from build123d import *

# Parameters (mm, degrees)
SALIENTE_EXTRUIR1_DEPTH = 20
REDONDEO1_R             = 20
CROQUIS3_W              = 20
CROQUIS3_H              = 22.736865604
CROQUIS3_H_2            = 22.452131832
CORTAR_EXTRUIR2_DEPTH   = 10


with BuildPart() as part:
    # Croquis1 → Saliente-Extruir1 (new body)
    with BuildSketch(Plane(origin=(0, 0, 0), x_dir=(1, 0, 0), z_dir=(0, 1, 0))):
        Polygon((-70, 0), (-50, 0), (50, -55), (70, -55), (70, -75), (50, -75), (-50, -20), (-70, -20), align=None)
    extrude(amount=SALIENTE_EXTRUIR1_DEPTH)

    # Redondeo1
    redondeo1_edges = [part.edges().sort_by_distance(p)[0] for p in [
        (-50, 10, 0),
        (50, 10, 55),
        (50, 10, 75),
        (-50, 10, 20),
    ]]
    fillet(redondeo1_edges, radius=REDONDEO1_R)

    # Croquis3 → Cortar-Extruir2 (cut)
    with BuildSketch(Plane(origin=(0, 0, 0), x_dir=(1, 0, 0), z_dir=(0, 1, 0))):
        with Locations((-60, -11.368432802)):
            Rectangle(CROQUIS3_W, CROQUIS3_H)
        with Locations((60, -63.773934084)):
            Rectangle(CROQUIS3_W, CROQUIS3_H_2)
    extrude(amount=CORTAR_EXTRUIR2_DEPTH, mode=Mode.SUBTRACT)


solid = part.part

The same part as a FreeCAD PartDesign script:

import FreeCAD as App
import Part
import Sketcher
Q = App.Units.Quantity


def edges_at(feature, points):
    """Names of the edges that pass closest to the given points."""
    edges = feature.Shape.Edges
    near = lambda p: min(range(len(edges)), key=lambda i: edges[i].distToShape(Part.Vertex(*p))[0])
    return sorted({f"Edge{near(p) + 1}" for p in points})

doc = App.newDocument("Part")
body = doc.addObject("PartDesign::Body", "Body")

# Sketch on XZ plane
sketch1 = body.newObject("Sketcher::SketchObject", "Sketch")
sketch1.AttachmentSupport = (doc.getObject("XZ_Plane"), [""])
sketch1.MapMode = "FlatFace"
sketch1.addGeometry(Part.LineSegment(App.Vector(-50, 0, 0), App.Vector(-70, 0, 0)), False)
sketch1.addGeometry(Part.LineSegment(App.Vector(-70, 0, 0), App.Vector(-70, 20, 0)), False)
sketch1.addGeometry(Part.LineSegment(App.Vector(-70, 20, 0), App.Vector(-50, 20, 0)), False)
sketch1.addGeometry(Part.LineSegment(App.Vector(-50, 20, 0), App.Vector(50, 75, 0)), False)
sketch1.addGeometry(Part.LineSegment(App.Vector(50, 75, 0), App.Vector(70, 75, 0)), False)
sketch1.addGeometry(Part.LineSegment(App.Vector(70, 75, 0), App.Vector(70, 55, 0)), False)
sketch1.addGeometry(Part.LineSegment(App.Vector(70, 55, 0), App.Vector(50, 55, 0)), False)
sketch1.addGeometry(Part.LineSegment(App.Vector(50, 55, 0), App.Vector(-50, 0, 0)), False)
sketch1.addConstraint(Sketcher.Constraint("Coincident", 0, 2, 1, 1))
sketch1.addConstraint(Sketcher.Constraint("Coincident", 1, 2, 2, 1))
sketch1.addConstraint(Sketcher.Constraint("Coincident", 2, 2, 3, 1))
sketch1.addConstraint(Sketcher.Constraint("Coincident", 3, 2, 4, 1))
sketch1.addConstraint(Sketcher.Constraint("Coincident", 4, 2, 5, 1))
sketch1.addConstraint(Sketcher.Constraint("Coincident", 5, 2, 6, 1))
sketch1.addConstraint(Sketcher.Constraint("Coincident", 6, 2, 7, 1))
sketch1.addConstraint(Sketcher.Constraint("Coincident", 7, 2, 0, 1))
sketch1.addConstraint(Sketcher.Constraint("Horizontal", 0))
sketch1.addConstraint(Sketcher.Constraint("Vertical", 1))
sketch1.addConstraint(Sketcher.Constraint("Horizontal", 2))
sketch1.addConstraint(Sketcher.Constraint("Horizontal", 4))
sketch1.addConstraint(Sketcher.Constraint("Vertical", 5))
sketch1.addConstraint(Sketcher.Constraint("Horizontal", 6))
sketch1.addConstraint(Sketcher.Constraint("PointOnObject", 0, 2, -1))
sketch1.addConstraint(Sketcher.Constraint("Parallel", 3, 7))
sketch1.addConstraint(Sketcher.Constraint("Vertical", 3, 2, 6, 2))
sketch1.addConstraint(Sketcher.Constraint("Vertical", 2, 2, 7, 2))
sketch1.addConstraint(Sketcher.Constraint("Equal", 2, 4))
sketch1.addConstraint(Sketcher.Constraint("Equal", 6, 1))
sketch1.addConstraint(Sketcher.Constraint("DistanceX", 0, 2, 0, 1, Q("20 mm")))
sketch1.addConstraint(Sketcher.Constraint("DistanceX", 0, 2, -1, 1, Q("70 mm")))
sketch1.addConstraint(Sketcher.Constraint("DistanceX", -1, 1, 3, 2, Q("50 mm")))
sketch1.addConstraint(Sketcher.Constraint("DistanceY", -1, 1, 3, 2, Q("75 mm")))
pad1 = body.newObject("PartDesign::Pad", "Pad")
pad1.Profile = sketch1
pad1.Length = 20
pad1.Reversed = True
doc.recompute()

fillet = body.newObject("PartDesign::Fillet", "Fillet")
fillet.Base = (pad1, edges_at(pad1, [
    (-50, 10, 0),
    (50, 10, 55),
    (50, 10, 75),
    (-50, 10, 20),
]))
fillet.Radius = 20

# Sketch on XZ plane
sketch2 = body.newObject("Sketcher::SketchObject", "Sketch001")
sketch2.AttachmentSupport = (doc.getObject("XZ_Plane"), [""])
sketch2.MapMode = "FlatFace"
sketch2.addGeometry(Part.LineSegment(App.Vector(-70, 0, 0), App.Vector(-70, 23, 0)), False)
sketch2.addGeometry(Part.LineSegment(App.Vector(-70, 23, 0), App.Vector(-50, 23, 0)), False)
sketch2.addGeometry(Part.LineSegment(App.Vector(-50, 23, 0), App.Vector(-50, 0, 0)), False)
sketch2.addGeometry(Part.LineSegment(App.Vector(-50, 0, 0), App.Vector(-70, 0, 0)), False)
sketch2.addGeometry(Part.LineSegment(App.Vector(50, 53, 0), App.Vector(50, 75, 0)), False)
sketch2.addGeometry(Part.LineSegment(App.Vector(50, 75, 0), App.Vector(70, 75, 0)), False)
sketch2.addGeometry(Part.LineSegment(App.Vector(70, 75, 0), App.Vector(70, 53, 0)), False)
sketch2.addGeometry(Part.LineSegment(App.Vector(70, 53, 0), App.Vector(50, 53, 0)), False)
sketch2.addConstraint(Sketcher.Constraint("Coincident", 0, 2, 1, 1))
sketch2.addConstraint(Sketcher.Constraint("Coincident", 1, 2, 2, 1))
sketch2.addConstraint(Sketcher.Constraint("Coincident", 2, 2, 3, 1))
sketch2.addConstraint(Sketcher.Constraint("Coincident", 3, 2, 0, 1))
sketch2.addConstraint(Sketcher.Constraint("Coincident", 4, 2, 5, 1))
sketch2.addConstraint(Sketcher.Constraint("Coincident", 5, 2, 6, 1))
sketch2.addConstraint(Sketcher.Constraint("Coincident", 6, 2, 7, 1))
sketch2.addConstraint(Sketcher.Constraint("Coincident", 7, 2, 4, 1))
sketch2.addConstraint(Sketcher.Constraint("Vertical", 0))
sketch2.addConstraint(Sketcher.Constraint("Horizontal", 1))
sketch2.addConstraint(Sketcher.Constraint("Vertical", 2))
sketch2.addConstraint(Sketcher.Constraint("Horizontal", 3))
sketch2.addConstraint(Sketcher.Constraint("Vertical", 4))
sketch2.addConstraint(Sketcher.Constraint("Horizontal", 5))
sketch2.addConstraint(Sketcher.Constraint("Vertical", 6))
sketch2.addConstraint(Sketcher.Constraint("Horizontal", 7))
sketch2.addConstraint(Sketcher.Constraint("PointOnObject", 2, 2, -1))
sketch2.addConstraint(Sketcher.Constraint("Equal", 3, 5))
sketch2.addConstraint(Sketcher.Constraint("DistanceX", 1, 1, 1, 2, Q("20 mm")))
sketch2.addConstraint(Sketcher.Constraint("DistanceX", 0, 2, -1, 1, Q("70 mm")))
sketch2.addConstraint(Sketcher.Constraint("DistanceX", -1, 1, 4, 2, Q("50 mm")))
sketch2.addConstraint(Sketcher.Constraint("DistanceY", -1, 1, 4, 2, Q("75 mm")))
sketch2.addConstraint(Sketcher.Constraint("DistanceY", 4, 1, 4, 2, Q("22.452132 mm")))
sketch2.addConstraint(Sketcher.Constraint("DistanceY", 0, 1, 0, 2, Q("22.736866 mm")))
pocket1 = body.newObject("PartDesign::Pocket", "Pocket")
pocket1.Profile = sketch2
pocket1.Length = 10

doc.recompute()
